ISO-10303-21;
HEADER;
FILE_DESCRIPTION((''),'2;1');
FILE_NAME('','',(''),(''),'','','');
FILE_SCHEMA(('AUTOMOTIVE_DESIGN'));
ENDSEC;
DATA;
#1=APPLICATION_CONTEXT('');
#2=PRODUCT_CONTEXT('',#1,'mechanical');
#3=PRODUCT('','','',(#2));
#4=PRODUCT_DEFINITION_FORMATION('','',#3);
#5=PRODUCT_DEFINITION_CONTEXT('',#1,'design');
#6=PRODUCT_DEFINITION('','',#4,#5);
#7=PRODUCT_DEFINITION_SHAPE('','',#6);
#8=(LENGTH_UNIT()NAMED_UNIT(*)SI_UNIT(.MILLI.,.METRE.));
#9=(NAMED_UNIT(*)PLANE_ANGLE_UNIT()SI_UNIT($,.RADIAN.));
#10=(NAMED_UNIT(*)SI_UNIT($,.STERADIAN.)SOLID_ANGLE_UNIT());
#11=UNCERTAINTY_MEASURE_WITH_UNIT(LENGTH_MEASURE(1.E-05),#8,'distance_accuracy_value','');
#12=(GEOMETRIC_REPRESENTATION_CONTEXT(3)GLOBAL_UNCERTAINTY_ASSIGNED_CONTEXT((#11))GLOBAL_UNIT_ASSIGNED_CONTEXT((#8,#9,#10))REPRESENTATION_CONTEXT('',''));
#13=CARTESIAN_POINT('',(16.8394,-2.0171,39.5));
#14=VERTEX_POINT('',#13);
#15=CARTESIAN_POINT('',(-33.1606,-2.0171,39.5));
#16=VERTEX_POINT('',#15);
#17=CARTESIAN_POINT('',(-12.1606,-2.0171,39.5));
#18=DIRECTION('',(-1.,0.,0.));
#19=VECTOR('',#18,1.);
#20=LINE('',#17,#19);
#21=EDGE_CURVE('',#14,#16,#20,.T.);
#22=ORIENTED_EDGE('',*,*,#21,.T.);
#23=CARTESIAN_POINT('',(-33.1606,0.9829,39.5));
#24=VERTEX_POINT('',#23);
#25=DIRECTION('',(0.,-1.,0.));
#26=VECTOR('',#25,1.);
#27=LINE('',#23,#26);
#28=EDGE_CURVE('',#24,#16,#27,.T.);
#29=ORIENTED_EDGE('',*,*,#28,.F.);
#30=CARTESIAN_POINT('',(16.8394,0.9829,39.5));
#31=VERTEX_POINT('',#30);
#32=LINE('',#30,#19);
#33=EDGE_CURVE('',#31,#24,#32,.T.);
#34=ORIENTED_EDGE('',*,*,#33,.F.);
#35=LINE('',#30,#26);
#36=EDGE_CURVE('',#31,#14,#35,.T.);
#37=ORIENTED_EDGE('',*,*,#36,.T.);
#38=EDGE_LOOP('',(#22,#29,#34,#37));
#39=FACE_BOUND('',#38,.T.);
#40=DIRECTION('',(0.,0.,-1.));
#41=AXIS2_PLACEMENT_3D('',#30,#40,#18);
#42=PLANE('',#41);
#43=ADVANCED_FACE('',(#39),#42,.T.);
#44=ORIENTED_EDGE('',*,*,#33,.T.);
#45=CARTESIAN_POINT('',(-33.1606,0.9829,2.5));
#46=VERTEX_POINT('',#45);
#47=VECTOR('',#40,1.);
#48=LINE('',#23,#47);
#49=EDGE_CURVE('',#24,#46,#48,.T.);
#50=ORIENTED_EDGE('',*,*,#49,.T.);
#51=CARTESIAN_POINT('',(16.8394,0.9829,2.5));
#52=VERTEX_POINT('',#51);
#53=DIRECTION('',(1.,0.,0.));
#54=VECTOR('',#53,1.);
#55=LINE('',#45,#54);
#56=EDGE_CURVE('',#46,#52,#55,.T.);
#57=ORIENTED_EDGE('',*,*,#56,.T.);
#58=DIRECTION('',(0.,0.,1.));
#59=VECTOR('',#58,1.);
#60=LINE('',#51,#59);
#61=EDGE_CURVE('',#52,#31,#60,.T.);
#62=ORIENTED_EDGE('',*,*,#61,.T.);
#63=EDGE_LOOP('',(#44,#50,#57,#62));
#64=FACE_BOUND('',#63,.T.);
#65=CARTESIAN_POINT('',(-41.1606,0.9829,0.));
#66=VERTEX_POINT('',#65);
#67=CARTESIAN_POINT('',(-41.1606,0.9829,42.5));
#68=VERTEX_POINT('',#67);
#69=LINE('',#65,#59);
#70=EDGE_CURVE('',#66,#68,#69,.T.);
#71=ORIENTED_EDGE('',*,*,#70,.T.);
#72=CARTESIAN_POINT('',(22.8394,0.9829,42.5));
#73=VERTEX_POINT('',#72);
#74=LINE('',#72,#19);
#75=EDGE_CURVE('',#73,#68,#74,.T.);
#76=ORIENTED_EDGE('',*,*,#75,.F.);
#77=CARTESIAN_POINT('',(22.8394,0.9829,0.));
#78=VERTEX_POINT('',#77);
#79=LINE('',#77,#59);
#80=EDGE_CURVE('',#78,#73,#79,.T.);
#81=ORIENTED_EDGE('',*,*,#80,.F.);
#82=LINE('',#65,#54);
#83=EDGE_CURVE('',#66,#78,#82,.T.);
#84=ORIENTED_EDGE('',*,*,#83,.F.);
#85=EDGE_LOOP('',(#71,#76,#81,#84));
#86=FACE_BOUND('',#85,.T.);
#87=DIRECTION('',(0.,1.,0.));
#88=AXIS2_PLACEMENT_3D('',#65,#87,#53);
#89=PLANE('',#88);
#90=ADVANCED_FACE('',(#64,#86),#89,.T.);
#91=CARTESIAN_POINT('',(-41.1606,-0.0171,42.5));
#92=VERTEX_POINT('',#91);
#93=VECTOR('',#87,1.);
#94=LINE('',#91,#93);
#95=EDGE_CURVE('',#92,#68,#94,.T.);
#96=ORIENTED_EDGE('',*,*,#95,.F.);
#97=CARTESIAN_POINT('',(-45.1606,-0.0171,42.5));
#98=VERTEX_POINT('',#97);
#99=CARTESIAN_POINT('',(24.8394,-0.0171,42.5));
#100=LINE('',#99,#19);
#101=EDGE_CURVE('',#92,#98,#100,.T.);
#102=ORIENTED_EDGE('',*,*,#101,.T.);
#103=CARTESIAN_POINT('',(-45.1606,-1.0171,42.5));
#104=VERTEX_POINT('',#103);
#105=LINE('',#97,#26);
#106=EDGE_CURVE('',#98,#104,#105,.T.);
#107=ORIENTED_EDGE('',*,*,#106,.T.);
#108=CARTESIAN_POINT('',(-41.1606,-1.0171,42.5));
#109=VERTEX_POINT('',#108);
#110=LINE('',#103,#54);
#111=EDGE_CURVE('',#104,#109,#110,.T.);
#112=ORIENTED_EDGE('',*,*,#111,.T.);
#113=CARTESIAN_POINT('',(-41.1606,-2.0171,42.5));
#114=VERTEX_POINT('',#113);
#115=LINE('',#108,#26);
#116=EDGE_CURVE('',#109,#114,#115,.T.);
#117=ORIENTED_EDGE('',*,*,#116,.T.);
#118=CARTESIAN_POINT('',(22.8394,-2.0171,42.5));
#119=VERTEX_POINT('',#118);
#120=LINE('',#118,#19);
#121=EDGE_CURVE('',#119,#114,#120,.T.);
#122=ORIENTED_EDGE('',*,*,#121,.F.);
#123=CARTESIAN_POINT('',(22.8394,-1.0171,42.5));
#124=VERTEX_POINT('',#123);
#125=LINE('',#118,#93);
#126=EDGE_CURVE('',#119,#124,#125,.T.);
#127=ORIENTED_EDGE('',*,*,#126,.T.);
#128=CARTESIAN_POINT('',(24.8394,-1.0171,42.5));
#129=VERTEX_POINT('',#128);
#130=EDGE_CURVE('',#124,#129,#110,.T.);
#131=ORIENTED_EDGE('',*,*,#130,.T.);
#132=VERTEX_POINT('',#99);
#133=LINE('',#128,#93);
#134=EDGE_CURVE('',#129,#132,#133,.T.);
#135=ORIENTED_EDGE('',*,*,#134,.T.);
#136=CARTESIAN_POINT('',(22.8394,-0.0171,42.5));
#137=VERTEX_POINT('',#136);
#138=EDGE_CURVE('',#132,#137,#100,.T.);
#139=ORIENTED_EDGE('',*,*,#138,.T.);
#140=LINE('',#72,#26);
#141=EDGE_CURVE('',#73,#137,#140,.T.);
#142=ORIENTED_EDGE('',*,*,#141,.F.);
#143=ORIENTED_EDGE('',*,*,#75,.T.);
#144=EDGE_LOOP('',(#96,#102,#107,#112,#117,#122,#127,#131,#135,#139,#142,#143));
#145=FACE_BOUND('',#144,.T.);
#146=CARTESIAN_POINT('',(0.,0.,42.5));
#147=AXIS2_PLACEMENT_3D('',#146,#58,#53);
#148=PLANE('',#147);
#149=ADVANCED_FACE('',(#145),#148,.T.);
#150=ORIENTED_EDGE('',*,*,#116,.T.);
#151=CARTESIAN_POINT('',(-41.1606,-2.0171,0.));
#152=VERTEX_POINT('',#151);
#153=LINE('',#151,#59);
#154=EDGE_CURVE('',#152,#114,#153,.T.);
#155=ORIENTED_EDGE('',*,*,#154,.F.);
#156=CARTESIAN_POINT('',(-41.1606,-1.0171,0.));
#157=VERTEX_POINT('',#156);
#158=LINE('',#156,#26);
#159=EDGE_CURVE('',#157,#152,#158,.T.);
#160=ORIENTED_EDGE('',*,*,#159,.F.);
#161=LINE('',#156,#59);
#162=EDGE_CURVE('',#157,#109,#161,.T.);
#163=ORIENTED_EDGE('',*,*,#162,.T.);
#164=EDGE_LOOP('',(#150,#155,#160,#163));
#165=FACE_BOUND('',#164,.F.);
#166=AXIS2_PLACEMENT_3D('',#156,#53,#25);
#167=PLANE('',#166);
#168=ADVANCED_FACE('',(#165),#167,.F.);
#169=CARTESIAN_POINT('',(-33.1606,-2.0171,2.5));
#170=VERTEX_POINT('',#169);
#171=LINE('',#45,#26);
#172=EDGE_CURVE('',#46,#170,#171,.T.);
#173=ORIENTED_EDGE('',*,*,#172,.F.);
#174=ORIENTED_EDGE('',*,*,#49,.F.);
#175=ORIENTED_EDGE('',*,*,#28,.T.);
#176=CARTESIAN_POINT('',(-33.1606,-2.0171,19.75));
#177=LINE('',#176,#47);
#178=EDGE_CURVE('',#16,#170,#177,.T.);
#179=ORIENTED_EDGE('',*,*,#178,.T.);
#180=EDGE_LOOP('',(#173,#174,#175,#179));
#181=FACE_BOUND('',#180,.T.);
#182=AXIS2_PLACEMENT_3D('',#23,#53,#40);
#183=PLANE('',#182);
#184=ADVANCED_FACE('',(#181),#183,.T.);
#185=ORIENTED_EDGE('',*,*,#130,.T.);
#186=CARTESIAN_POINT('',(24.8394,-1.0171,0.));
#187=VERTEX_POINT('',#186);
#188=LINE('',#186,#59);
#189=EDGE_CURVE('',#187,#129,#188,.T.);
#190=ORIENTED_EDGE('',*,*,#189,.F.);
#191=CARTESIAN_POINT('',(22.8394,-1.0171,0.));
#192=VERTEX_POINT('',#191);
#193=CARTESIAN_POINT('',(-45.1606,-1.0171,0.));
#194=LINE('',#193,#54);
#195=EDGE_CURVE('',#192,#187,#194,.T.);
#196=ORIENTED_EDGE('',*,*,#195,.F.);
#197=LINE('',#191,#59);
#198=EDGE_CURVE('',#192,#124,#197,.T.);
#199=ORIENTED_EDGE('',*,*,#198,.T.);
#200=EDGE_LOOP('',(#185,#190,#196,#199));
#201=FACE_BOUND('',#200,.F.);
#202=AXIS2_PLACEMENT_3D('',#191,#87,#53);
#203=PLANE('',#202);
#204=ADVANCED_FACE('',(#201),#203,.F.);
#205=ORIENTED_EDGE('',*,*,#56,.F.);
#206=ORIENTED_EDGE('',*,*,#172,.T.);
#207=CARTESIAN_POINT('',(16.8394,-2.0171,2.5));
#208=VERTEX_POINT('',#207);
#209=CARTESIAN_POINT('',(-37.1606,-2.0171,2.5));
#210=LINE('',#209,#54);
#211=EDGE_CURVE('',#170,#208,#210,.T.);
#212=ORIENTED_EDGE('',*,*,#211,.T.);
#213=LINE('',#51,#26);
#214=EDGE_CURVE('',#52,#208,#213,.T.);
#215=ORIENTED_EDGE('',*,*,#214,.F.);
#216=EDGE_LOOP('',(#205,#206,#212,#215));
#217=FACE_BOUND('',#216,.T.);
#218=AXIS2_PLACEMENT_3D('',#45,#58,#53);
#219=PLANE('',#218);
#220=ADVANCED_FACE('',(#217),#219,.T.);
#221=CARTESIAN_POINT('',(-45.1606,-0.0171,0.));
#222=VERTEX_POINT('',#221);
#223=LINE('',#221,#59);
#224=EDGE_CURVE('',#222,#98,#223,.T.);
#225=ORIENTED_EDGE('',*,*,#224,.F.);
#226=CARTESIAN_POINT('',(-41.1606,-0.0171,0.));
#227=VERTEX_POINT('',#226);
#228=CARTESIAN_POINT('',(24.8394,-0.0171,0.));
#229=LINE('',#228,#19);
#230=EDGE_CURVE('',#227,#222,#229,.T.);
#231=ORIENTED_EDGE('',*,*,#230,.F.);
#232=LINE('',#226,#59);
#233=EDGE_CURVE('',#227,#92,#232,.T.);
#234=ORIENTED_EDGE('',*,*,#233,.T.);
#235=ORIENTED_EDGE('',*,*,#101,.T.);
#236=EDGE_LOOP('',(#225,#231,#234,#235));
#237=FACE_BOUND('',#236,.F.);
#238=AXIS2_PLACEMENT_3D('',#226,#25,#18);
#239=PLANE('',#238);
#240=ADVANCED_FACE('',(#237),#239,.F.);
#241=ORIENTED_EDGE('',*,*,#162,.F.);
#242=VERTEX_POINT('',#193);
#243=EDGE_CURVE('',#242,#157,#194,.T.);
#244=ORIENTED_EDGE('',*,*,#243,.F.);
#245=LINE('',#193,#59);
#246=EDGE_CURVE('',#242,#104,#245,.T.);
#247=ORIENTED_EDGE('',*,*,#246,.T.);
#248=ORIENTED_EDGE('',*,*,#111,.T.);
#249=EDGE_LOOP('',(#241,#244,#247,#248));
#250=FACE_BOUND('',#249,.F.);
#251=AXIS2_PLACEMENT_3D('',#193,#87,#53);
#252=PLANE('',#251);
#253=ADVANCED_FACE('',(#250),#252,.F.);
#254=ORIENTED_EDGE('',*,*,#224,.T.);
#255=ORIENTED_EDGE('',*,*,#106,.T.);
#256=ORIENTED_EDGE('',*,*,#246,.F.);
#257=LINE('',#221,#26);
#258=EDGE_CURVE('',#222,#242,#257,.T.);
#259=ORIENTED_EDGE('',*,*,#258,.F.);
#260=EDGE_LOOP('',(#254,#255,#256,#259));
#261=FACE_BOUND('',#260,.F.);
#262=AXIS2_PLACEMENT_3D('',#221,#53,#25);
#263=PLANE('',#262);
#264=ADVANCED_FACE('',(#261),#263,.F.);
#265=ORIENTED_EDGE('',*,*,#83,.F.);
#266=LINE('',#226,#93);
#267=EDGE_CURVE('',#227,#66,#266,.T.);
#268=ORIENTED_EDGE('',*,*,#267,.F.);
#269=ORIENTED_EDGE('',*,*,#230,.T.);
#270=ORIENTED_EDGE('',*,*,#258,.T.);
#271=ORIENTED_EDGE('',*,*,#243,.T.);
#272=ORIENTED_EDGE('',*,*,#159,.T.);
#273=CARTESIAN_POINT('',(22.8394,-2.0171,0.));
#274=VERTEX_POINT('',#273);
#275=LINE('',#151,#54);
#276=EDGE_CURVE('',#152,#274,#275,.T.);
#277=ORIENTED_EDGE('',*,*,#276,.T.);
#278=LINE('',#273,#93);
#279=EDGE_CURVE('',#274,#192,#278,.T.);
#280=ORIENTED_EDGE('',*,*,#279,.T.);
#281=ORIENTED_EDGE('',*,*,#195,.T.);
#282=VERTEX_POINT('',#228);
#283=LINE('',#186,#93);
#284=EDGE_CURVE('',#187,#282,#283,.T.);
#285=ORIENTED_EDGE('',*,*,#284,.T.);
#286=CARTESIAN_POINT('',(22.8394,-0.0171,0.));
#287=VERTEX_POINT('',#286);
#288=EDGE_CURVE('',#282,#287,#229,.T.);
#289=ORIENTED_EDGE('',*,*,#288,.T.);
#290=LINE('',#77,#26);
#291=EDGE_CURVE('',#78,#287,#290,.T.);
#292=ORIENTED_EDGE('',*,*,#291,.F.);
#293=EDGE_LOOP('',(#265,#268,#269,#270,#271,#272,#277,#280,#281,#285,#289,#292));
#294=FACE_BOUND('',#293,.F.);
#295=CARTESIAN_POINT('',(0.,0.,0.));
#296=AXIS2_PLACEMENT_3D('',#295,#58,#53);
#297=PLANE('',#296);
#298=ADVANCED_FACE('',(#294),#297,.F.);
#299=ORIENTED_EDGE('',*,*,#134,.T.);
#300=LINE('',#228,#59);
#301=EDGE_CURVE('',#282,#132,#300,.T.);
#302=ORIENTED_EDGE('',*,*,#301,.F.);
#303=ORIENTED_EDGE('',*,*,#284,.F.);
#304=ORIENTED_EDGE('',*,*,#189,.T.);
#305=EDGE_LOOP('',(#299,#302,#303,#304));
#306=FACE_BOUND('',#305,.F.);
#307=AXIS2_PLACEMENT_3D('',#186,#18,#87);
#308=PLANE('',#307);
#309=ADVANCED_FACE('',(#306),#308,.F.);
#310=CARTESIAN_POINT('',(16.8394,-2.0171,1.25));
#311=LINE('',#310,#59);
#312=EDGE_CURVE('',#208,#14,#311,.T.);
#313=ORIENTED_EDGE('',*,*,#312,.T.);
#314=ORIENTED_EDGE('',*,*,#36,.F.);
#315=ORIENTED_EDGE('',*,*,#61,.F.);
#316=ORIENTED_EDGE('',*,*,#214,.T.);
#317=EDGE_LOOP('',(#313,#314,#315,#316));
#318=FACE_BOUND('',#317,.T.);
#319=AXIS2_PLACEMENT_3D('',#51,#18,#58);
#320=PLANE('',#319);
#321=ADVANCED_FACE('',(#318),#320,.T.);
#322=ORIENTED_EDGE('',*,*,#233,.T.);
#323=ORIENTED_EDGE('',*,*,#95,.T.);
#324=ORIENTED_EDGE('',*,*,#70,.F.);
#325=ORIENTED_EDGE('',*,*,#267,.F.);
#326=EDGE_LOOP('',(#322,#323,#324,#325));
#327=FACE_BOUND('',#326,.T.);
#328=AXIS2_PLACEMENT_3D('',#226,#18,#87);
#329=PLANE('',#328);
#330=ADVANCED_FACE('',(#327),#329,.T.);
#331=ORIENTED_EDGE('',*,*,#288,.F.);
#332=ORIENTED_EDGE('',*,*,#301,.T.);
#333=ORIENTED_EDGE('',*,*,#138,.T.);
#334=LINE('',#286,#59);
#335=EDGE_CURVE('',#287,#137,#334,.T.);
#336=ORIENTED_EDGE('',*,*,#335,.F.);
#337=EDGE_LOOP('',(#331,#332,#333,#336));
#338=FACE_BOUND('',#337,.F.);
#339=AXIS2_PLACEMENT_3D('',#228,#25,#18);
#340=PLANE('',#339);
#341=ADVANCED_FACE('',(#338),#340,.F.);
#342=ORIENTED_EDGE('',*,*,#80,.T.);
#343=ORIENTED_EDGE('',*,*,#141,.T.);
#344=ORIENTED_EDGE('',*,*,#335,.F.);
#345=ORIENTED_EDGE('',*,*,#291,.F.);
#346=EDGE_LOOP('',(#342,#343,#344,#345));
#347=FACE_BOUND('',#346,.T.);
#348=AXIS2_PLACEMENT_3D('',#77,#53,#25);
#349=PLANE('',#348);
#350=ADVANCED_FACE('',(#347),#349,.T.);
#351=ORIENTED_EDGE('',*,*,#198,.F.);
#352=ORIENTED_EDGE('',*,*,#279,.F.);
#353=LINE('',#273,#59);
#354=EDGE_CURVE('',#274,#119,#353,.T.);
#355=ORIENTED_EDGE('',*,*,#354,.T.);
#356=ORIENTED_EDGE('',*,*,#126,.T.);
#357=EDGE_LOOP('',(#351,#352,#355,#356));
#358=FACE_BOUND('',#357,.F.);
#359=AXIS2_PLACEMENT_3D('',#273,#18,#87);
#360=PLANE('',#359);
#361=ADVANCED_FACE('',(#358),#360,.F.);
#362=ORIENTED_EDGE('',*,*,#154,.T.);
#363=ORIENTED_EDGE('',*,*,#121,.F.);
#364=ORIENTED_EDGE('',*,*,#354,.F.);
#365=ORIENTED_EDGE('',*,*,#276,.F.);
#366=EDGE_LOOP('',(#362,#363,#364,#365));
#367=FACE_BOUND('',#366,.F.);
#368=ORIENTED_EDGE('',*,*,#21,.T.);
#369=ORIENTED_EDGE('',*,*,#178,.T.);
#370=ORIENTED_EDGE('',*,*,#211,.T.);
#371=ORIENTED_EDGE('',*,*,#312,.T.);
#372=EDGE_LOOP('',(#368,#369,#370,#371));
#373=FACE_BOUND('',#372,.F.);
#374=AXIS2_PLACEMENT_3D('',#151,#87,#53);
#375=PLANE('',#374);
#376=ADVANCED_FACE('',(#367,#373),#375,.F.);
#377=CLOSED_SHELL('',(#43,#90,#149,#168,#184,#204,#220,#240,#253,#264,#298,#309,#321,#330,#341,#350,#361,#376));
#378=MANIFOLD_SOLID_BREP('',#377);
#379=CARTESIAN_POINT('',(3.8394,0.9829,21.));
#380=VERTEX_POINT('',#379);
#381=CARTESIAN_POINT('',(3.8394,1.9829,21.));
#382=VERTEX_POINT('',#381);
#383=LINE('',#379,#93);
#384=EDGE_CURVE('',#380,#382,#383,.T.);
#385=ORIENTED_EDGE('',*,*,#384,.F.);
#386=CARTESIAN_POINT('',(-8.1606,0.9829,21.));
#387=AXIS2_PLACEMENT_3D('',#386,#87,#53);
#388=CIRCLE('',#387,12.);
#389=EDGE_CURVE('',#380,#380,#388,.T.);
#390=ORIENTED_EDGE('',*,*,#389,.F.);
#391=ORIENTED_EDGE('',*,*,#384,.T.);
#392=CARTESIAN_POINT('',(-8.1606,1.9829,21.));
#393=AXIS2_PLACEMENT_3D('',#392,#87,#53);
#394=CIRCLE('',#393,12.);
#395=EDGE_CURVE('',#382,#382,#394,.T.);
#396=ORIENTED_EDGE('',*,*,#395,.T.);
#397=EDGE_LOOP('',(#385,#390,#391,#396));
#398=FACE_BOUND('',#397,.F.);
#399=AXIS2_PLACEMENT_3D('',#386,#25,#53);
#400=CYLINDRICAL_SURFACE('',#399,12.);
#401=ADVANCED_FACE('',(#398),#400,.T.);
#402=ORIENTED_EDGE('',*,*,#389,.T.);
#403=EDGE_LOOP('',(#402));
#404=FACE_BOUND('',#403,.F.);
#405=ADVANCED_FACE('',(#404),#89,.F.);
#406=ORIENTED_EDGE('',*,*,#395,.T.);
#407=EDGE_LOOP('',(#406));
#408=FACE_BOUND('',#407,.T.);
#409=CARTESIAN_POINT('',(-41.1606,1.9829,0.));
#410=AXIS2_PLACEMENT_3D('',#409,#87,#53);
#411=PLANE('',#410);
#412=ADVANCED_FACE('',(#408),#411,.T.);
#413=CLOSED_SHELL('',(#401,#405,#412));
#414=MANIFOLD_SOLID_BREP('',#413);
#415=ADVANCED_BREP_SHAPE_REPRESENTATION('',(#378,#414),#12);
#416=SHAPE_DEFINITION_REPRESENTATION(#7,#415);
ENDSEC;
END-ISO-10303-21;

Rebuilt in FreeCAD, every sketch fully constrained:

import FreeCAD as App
import Part
import Sketcher
from FreeCAD import Vector

doc = App.newDocument("Part")
body = doc.addObject("PartDesign::Body", "Body")
body.AllowCompound = True

sketch1 = body.newObject("Sketcher::SketchObject", "Sketch")
sketch1.AttachmentSupport = (doc.getObject("XY_Plane"), [""])
sketch1.MapMode = "FlatFace"
sketch1.addGeometry([
    Part.LineSegment(Vector(-41.2, -2, 0), Vector(22.8, -2, 0)),
    Part.LineSegment(Vector(22.8, -2, 0), Vector(22.8, -1, 0)),
    Part.LineSegment(Vector(22.8, -1, 0), Vector(24.8, -1, 0)),
    Part.LineSegment(Vector(24.8, -1, 0), Vector(24.8, 0, 0)),
    Part.LineSegment(Vector(24.8, 0, 0), Vector(22.8, 0, 0)),
    Part.LineSegment(Vector(22.8, 0, 0), Vector(22.8, 1, 0)),
    Part.LineSegment(Vector(22.8, 1, 0), Vector(-41.2, 1, 0)),
    Part.LineSegment(Vector(-41.2, 1, 0), Vector(-41.2, 0, 0)),
    Part.LineSegment(Vector(-41.2, 0, 0), Vector(-45.2, 0, 0)),
    Part.LineSegment(Vector(-45.2, 0, 0), Vector(-45.2, -1, 0)),
    Part.LineSegment(Vector(-45.2, -1, 0), Vector(-41.2, -1, 0)),
    Part.LineSegment(Vector(-41.2, -1, 0), Vector(-41.2, -2, 0)),
], False)
sketch1.addConstraint([
    Sketcher.Constraint("Coincident", 0, 2, 1, 1),
    Sketcher.Constraint("Coincident", 1, 2, 2, 1),
    Sketcher.Constraint("Coincident", 2, 2, 3, 1),
    Sketcher.Constraint("Coincident", 3, 2, 4, 1),
    Sketcher.Constraint("Coincident", 4, 2, 5, 1),
    Sketcher.Constraint("Coincident", 5, 2, 6, 1),
    Sketcher.Constraint("Coincident", 6, 2, 7, 1),
    Sketcher.Constraint("Coincident", 7, 2, 8, 1),
    Sketcher.Constraint("Coincident", 8, 2, 9, 1),
    Sketcher.Constraint("Coincident", 9, 2, 10, 1),
    Sketcher.Constraint("Coincident", 10, 2, 11, 1),
    Sketcher.Constraint("Coincident", 11, 2, 0, 1),
    Sketcher.Constraint("Horizontal", 0),
    Sketcher.Constraint("Vertical", 1),
    Sketcher.Constraint("Horizontal", 2),
    Sketcher.Constraint("Vertical", 3),
    Sketcher.Constraint("Horizontal", 4),
    Sketcher.Constraint("Vertical", 5),
    Sketcher.Constraint("Horizontal", 6),
    Sketcher.Constraint("Vertical", 7),
    Sketcher.Constraint("Horizontal", 8),
    Sketcher.Constraint("Vertical", 9),
    Sketcher.Constraint("Horizontal", 10),
    Sketcher.Constraint("Vertical", 11),
    Sketcher.Constraint("Horizontal", 4, 2, 7, 2),
    Sketcher.Constraint("Horizontal", 2, 2, 9, 2),
    Sketcher.Constraint("Vertical", 1, 2, 4, 2),
    Sketcher.Constraint("Vertical", 7, 2, 10, 2),
    Sketcher.Constraint("Equal", 1, 3),
    Sketcher.Constraint("Equal", 3, 5),
    Sketcher.Constraint("DistanceX", 0, 1, 0, 2, 64.0),
    Sketcher.Constraint("DistanceX", 2, 1, 2, 2, 2.0),
    Sketcher.Constraint("DistanceY", 1, 1, 1, 2, 1.0),
    Sketcher.Constraint("DistanceX", 8, 2, 8, 1, 4.0),
    Sketcher.Constraint("DistanceY", 0, 2, -1, 1, 2.017),
    Sketcher.Constraint("DistanceX", -1, 1, 0, 2, 22.8394),
])
pad1 = body.newObject("PartDesign::Pad", "Pad")
pad1.Profile = sketch1
pad1.Length = 42.5

sketch2 = body.newObject("Sketcher::SketchObject", "Sketch001")
sketch2.AttachmentSupport = (doc.getObject("XZ_Plane"), [""])
sketch2.MapMode = "FlatFace"
sketch2.AttachmentOffset = App.Placement(Vector(0, 0, -0.9829), App.Rotation())
sketch2.addGeometry([
    Part.LineSegment(Vector(-33, 40, 0), Vector(17, 40, 0)),
    Part.LineSegment(Vector(17, 40, 0), Vector(17, 2, 0)),
    Part.LineSegment(Vector(17, 2, 0), Vector(-33, 2, 0)),
    Part.LineSegment(Vector(-33, 2, 0), Vector(-33, 40, 0)),
], False)
sketch2.addConstraint([
    Sketcher.Constraint("Coincident", 0, 2, 1, 1),
    Sketcher.Constraint("Coincident", 1, 2, 2, 1),
    Sketcher.Constraint("Coincident", 2, 2, 3, 1),
    Sketcher.Constraint("Coincident", 3, 2, 0, 1),
    Sketcher.Constraint("Horizontal", 0),
    Sketcher.Constraint("Vertical", 1),
    Sketcher.Constraint("Horizontal", 2),
    Sketcher.Constraint("Vertical", 3),
    Sketcher.Constraint("DistanceX", 0, 1, 0, 2, 50.0),
    Sketcher.Constraint("DistanceY", 1, 2, 1, 1, 37.0),
    Sketcher.Constraint("DistanceY", -1, 1, 0, 2, 39.5),
    Sketcher.Constraint("DistanceX", -1, 1, 0, 2, 16.8394),
])
pocket1 = body.newObject("PartDesign::Pocket", "Pocket")
pocket1.Profile = sketch2
pocket1.Type = "ThroughAll"
pocket1.Reversed = True

sketch3 = body.newObject("Sketcher::SketchObject", "Sketch002")
sketch3.AttachmentSupport = (doc.getObject("XZ_Plane"), [""])
sketch3.MapMode = "FlatFace"
sketch3.AttachmentOffset = App.Placement(Vector(0, 0, -0.9829), App.Rotation())
sketch3.addGeometry(Part.Circle(Vector(-8, 21, 0), Vector(0, 0, 1), 12), False)
sketch3.addConstraint([
    Sketcher.Constraint("Diameter", 0, 24.0),
    Sketcher.Constraint("DistanceY", -1, 1, 0, 3, 21.0),
    Sketcher.Constraint("DistanceX", 0, 3, -1, 1, 8.1606),
])
pad2 = body.newObject("PartDesign::Pad", "Pad001")
pad2.Profile = sketch3
pad2.Length = 1
pad2.Reversed = True

doc.recompute()
